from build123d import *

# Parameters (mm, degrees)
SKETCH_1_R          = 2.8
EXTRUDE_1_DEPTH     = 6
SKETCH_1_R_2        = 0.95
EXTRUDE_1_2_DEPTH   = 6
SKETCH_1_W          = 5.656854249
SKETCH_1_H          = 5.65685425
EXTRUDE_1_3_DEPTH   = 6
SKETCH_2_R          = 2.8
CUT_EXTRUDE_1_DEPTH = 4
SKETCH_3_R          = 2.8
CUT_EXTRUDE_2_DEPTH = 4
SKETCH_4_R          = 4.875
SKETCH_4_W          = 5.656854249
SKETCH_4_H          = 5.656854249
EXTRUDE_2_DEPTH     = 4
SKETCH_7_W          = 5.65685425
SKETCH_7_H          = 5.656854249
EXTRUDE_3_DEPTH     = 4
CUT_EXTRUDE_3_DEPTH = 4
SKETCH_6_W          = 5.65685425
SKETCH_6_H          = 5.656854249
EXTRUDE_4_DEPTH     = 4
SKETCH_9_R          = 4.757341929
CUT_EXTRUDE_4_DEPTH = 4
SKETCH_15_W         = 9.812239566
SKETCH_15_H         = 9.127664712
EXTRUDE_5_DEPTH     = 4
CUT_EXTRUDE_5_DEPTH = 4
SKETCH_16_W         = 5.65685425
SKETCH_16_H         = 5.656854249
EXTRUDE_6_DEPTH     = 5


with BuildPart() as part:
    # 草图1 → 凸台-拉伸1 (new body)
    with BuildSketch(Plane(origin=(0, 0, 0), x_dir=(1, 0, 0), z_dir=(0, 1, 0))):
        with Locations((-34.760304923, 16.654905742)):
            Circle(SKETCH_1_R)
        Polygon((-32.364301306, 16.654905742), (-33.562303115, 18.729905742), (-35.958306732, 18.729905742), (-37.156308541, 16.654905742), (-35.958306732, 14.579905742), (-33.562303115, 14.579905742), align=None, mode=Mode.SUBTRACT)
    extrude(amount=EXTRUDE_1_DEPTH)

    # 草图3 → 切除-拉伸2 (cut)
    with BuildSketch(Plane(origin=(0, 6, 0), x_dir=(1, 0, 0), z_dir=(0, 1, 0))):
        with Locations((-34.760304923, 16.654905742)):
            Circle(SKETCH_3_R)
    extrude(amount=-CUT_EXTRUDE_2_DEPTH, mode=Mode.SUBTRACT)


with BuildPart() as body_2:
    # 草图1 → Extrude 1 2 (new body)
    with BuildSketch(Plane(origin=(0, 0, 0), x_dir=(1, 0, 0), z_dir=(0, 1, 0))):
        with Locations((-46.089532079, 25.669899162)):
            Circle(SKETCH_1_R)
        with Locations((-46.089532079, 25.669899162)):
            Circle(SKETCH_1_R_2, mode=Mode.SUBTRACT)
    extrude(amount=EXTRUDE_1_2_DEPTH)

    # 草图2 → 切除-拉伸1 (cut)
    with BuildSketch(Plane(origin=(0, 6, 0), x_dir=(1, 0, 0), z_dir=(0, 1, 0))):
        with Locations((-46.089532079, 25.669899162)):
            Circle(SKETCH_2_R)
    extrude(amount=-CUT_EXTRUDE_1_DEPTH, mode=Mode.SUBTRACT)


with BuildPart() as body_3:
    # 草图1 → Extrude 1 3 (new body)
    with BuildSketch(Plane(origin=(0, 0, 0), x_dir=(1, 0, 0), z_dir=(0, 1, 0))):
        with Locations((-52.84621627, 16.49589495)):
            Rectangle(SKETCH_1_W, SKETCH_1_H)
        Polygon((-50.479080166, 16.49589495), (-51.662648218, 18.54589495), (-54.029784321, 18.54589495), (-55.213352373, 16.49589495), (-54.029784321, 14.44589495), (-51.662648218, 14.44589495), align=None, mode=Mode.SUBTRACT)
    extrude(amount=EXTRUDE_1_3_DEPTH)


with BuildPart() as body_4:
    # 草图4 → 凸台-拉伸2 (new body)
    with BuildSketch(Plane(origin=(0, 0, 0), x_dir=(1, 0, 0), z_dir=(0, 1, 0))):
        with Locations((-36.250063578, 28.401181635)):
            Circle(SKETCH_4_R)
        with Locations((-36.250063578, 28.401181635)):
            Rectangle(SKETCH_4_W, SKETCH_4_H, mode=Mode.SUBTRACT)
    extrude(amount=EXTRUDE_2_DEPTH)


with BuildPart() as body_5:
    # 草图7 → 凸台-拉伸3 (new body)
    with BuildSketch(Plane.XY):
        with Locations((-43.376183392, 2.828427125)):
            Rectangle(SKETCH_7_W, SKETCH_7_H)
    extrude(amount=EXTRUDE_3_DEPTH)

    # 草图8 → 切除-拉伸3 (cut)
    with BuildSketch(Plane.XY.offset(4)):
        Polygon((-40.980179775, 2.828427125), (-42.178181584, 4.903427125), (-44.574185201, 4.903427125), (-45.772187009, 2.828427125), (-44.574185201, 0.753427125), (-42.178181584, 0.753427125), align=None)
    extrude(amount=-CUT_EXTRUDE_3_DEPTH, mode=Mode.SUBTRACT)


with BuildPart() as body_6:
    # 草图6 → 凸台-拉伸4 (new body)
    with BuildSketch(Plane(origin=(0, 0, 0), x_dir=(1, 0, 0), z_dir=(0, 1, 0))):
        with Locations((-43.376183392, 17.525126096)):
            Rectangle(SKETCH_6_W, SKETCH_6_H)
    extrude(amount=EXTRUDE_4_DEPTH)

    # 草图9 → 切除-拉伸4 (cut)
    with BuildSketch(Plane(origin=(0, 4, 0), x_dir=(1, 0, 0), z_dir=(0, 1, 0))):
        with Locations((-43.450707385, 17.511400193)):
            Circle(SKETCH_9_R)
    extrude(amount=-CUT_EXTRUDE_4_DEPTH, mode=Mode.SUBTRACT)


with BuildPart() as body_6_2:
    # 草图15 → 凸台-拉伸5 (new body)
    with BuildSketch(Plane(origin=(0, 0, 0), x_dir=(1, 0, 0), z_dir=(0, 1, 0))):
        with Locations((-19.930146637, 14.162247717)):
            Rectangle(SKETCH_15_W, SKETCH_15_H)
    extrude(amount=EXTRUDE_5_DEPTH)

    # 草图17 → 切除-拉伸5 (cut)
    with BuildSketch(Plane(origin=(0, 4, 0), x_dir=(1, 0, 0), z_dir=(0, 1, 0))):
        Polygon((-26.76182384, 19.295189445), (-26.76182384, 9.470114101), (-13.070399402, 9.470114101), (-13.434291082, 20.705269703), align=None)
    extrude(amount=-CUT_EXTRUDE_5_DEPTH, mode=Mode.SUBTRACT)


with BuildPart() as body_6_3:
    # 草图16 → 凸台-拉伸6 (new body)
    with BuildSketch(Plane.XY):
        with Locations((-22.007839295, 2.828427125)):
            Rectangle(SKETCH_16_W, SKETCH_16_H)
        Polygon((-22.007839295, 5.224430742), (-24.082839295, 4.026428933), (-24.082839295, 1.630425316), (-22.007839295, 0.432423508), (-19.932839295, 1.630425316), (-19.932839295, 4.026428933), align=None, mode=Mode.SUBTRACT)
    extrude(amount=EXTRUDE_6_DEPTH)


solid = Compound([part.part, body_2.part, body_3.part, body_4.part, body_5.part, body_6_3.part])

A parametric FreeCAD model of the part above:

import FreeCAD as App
import Part
import Sketcher

V = App.Vector
Q = App.Units.Quantity

doc = App.newDocument("Part")
body = doc.addObject("PartDesign::Body", "Body")

# Sketch on XZ plane
sketch1 = body.newObject("Sketcher::SketchObject", "Sketch")
sketch1.AttachmentSupport = (doc.getObject("XZ_Plane"), [""])
sketch1.MapMode = "FlatFace"
sketch1.addGeometry([
    Part.Circle(V(-34.760305, -16.654906, 0), V(0, 0, 1), 2.8),  # 0
    Part.LineSegment(V(-33.562303, -18.729906, 0), V(-32.364301, -16.654906, 0)),  # 1
    Part.LineSegment(V(-32.364301, -16.654906, 0), V(-33.562303, -14.579906, 0)),  # 2
    Part.LineSegment(V(-33.562303, -14.579906, 0), V(-35.958307, -14.579906, 0)),  # 3
    Part.LineSegment(V(-35.958307, -14.579906, 0), V(-37.156309, -16.654906, 0)),  # 4
    Part.LineSegment(V(-37.156309, -16.654906, 0), V(-35.958307, -18.729906, 0)),  # 5
    Part.LineSegment(V(-35.958307, -18.729906, 0), V(-33.562303, -18.729906, 0)),  # 6
], False)
sketch1.addConstraint([
    Sketcher.Constraint("Coincident", 1, 2, 2, 1),
    Sketcher.Constraint("Coincident", 2, 2, 3, 1),
    Sketcher.Constraint("Coincident", 3, 2, 4, 1),
    Sketcher.Constraint("Coincident", 4, 2, 5, 1),
    Sketcher.Constraint("Coincident", 5, 2, 6, 1),
    Sketcher.Constraint("Coincident", 6, 2, 1, 1),
    Sketcher.Constraint("Horizontal", 3),
    Sketcher.Constraint("Horizontal", 6),
    Sketcher.Constraint("Parallel", 1, 4),
    Sketcher.Constraint("Parallel", 2, 5),
    Sketcher.Constraint("Horizontal", 0, 3, 1, 2),
    Sketcher.Constraint("Horizontal", 1, 2, 4, 2),
    Sketcher.Constraint("Vertical", 3, 2, 5, 2),
    Sketcher.Constraint("Vertical", 2, 2, 6, 2),
    Sketcher.Constraint("Diameter", 0, Q("5.6 mm")),
    Sketcher.Constraint("Angle", 1, Q("60 deg")),
    Sketcher.Constraint("DistanceY", 5, 2, 3, 2, Q("4.15 mm")),
    Sketcher.Constraint("DistanceX", 0, 3, 2, 2, Q("1.198002 mm")),
    Sketcher.Constraint("DistanceX", 3, 2, 0, 3, Q("1.198002 mm")),
    Sketcher.Constraint("DistanceX", 1, 2, -1, 1, Q("32.364301 mm")),
    Sketcher.Constraint("DistanceY", 0, 3, -1, 1, Q("16.654906 mm")),
])
pad1 = body.newObject("PartDesign::Pad", "Pad")
pad1.Profile = sketch1
pad1.Length = 6
pad1.Reversed = True

# Sketch on XZ plane
sketch2 = body.newObject("Sketcher::SketchObject", "Sketch001")
sketch2.AttachmentSupport = (doc.getObject("XZ_Plane"), [""])
sketch2.MapMode = "FlatFace"
sketch2.AttachmentOffset = App.Placement(V(0, 0, -6), App.Rotation())
sketch2.addGeometry(Part.Circle(V(-34.760305, -16.654906, 0), V(0, 0, 1), 2.8), False)
sketch2.addConstraint([
    Sketcher.Constraint("Diameter", 0, Q("5.6 mm")),
    Sketcher.Constraint("DistanceX", 0, 3, -1, 1, Q("34.760305 mm")),
    Sketcher.Constraint("DistanceY", 0, 3, -1, 1, Q("16.654906 mm")),
])
pocket1 = body.newObject("PartDesign::Pocket", "Pocket")
pocket1.Profile = sketch2
pocket1.Length = 4
pocket1.Reversed = True
body2 = doc.addObject("PartDesign::Body", "Body001")

# Sketch on XZ plane
sketch3 = body2.newObject("Sketcher::SketchObject", "Sketch002")
sketch3.AttachmentSupport = (doc.getObject("XZ_Plane001"), [""])
sketch3.MapMode = "FlatFace"
sketch3.addGeometry([
    Part.Circle(V(-46.089532, -25.669899, 0), V(0, 0, 1), 2.8),
    Part.Circle(V(-46.089532, -25.669899, 0), V(0, 0, 1), 0.95),
], False)
sketch3.addConstraint([
    Sketcher.Constraint("Coincident", 1, 3, 0, 3),
    Sketcher.Constraint("Diameter", 0, Q("5.6 mm")),
    Sketcher.Constraint("Diameter", 1, Q("1.9 mm")),
    Sketcher.Constraint("DistanceY", 0, 3, -1, 1, Q("25.669899 mm")),
    Sketcher.Constraint("DistanceX", 0, 3, -1, 1, Q("46.089532 mm")),
])
pad2 = body2.newObject("PartDesign::Pad", "Pad001")
pad2.Profile = sketch3
pad2.Length = 6
pad2.Reversed = True

# Sketch on XZ plane
sketch4 = body2.newObject("Sketcher::SketchObject", "Sketch003")
sketch4.AttachmentSupport = (doc.getObject("XZ_Plane001"), [""])
sketch4.MapMode = "FlatFace"
sketch4.AttachmentOffset = App.Placement(V(0, 0, -6), App.Rotation())
sketch4.addGeometry(Part.Circle(V(-46.089532, -25.669899, 0), V(0, 0, 1), 2.8), False)
sketch4.addConstraint([
    Sketcher.Constraint("Diameter", 0, Q("5.6 mm")),
    Sketcher.Constraint("DistanceY", 0, 3, -1, 1, Q("25.669899 mm")),
    Sketcher.Constraint("DistanceX", 0, 3, -1, 1, Q("46.089532 mm")),
])
pocket2 = body2.newObject("PartDesign::Pocket", "Pocket001")
pocket2.Profile = sketch4
pocket2.Length = 4
pocket2.Reversed = True
body3 = doc.addObject("PartDesign::Body", "Body002")

# Sketch on XZ plane
sketch5 = body3.newObject("Sketcher::SketchObject", "Sketch004")
sketch5.AttachmentSupport = (doc.getObject("XZ_Plane002"), [""])
sketch5.MapMode = "FlatFace"
sketch5.addGeometry([
    Part.LineSegment(V(-55.674643, -19.324322, 0), V(-55.674643, -13.667468, 0)),  # 0
    Part.LineSegment(V(-55.674643, -13.667468, 0), V(-50.017789, -13.667468, 0)),  # 1
    Part.LineSegment(V(-50.017789, -13.667468, 0), V(-50.017789, -19.324322, 0)),  # 2
    Part.LineSegment(V(-50.017789, -19.324322, 0), V(-55.674643, -19.324322, 0)),  # 3
    Part.LineSegment(V(-51.662648, -18.545895, 0), V(-50.47908, -16.495895, 0)),  # 4
    Part.LineSegment(V(-50.47908, -16.495895, 0), V(-51.662648, -14.445895, 0)),  # 5
    Part.LineSegment(V(-51.662648, -14.445895, 0), V(-54.029784, -14.445895, 0)),  # 6
    Part.LineSegment(V(-54.029784, -14.445895, 0), V(-55.213352, -16.495895, 0)),  # 7
    Part.LineSegment(V(-55.213352, -16.495895, 0), V(-54.029784, -18.545895, 0)),  # 8
    Part.LineSegment(V(-54.029784, -18.545895, 0), V(-51.662648, -18.545895, 0)),  # 9
], False)
sketch5.addConstraint([
    Sketcher.Constraint("Coincident", 0, 2, 1, 1),
    Sketcher.Constraint("Coincident", 1, 2, 2, 1),
    Sketcher.Constraint("Coincident", 2, 2, 3, 1),
    Sketcher.Constraint("Coincident", 3, 2, 0, 1),
    Sketcher.Constraint("Coincident", 4, 2, 5, 1),
    Sketcher.Constraint("Coincident", 5, 2, 6, 1),
    Sketcher.Constraint("Coincident", 6, 2, 7, 1),
    Sketcher.Constraint("Coincident", 7, 2, 8, 1),
    Sketcher.Constraint("Coincident", 8, 2, 9, 1),
    Sketcher.Constraint("Coincident", 9, 2, 4, 1),
    Sketcher.Constraint("Vertical", 0),
    Sketcher.Constraint("Horizontal", 1),
    Sketcher.Constraint("Vertical", 2),
    Sketcher.Constraint("Horizontal", 3),
    Sketcher.Constraint("Horizontal", 6),
    Sketcher.Constraint("Horizontal", 9),
    Sketcher.Constraint("Parallel", 4, 7),
    Sketcher.Constraint("Parallel", 5, 8),
    Sketcher.Constraint("Horizontal", 4, 2, 7, 2),
    Sketcher.Constraint("Vertical", 6, 2, 8, 2),
    Sketcher.Constraint("Vertical", 5, 2, 9, 2),
    Sketcher.Constraint("Equal", 3, 0),
    Sketcher.Constraint("Angle", 4, Q("60 deg")),
    Sketcher.Constraint("DistanceY", 8, 2, 6, 2, Q("4.1 mm")),
    Sketcher.Constraint("DistanceX", 1, 1, 1, 2, Q("5.656854 mm")),
    Sketcher.Constraint("DistanceX", 6, 2, 6, 1, Q("2.367136 mm")),
    Sketcher.Constraint("DistanceX", 1, 2, -1, 1, Q("50.017789 mm")),
    Sketcher.Constraint("DistanceX", 4, 2, -1, 1, Q("50.47908 mm")),
    Sketcher.Constraint("DistanceY", 0, 2, -1, 1, Q("13.667468 mm")),
    Sketcher.Constraint("DistanceY", 4, 2, -1, 1, Q("16.495895 mm")),
])
pad3 = body3.newObject("PartDesign::Pad", "Pad002")
pad3.Profile = sketch5
pad3.Length = 6
pad3.Reversed = True
body4 = doc.addObject("PartDesign::Body", "Body003")

# Sketch on XZ plane
sketch6 = body4.newObject("Sketcher::SketchObject", "Sketch005")
sketch6.AttachmentSupport = (doc.getObject("XZ_Plane003"), [""])
sketch6.MapMode = "FlatFace"
sketch6.addGeometry([
    Part.Circle(V(-36.250064, -28.401182, 0), V(0, 0, 1), 4.875),  # 0
    Part.LineSegment(V(-33.421636, -25.572755, 0), V(-39.078491, -25.572755, 0)),  # 1
    Part.LineSegment(V(-39.078491, -25.572755, 0), V(-39.078491, -31.229609, 0)),  # 2
    Part.LineSegment(V(-39.078491, -31.229609, 0), V(-33.421636, -31.229609, 0)),  # 3
    Part.LineSegment(V(-33.421636, -31.229609, 0), V(-33.421636, -25.572755, 0)),  # 4
], False)
sketch6.addConstraint([
    Sketcher.Constraint("Coincident", 1, 2, 2, 1),
    Sketcher.Constraint("Coincident", 2, 2, 3, 1),
    Sketcher.Constraint("Coincident", 3, 2, 4, 1),
    Sketcher.Constraint("Coincident", 4, 2, 1, 1),
    Sketcher.Constraint("Horizontal", 1),
    Sketcher.Constraint("Vertical", 2),
    Sketcher.Constraint("Horizontal", 3),
    Sketcher.Constraint("Vertical", 4),
    Sketcher.Constraint("Equal", 3, 2),
    Sketcher.Constraint("Diameter", 0, Q("9.75 mm")),
    Sketcher.Constraint("DistanceX", 1, 2, 1, 1, Q("5.656854 mm")),
    Sketcher.Constraint("DistanceY", 0, 3, -1, 1, Q("28.401182 mm")),
    Sketcher.Constraint("DistanceX", 1, 2, -1, 1, Q("39.078491 mm")),
    Sketcher.Constraint("DistanceY", 2, 2, -1, 1, Q("31.229609 mm")),
    Sketcher.Constraint("DistanceX", 0, 3, -1, 1, Q("36.250064 mm")),
])
pad4 = body4.newObject("PartDesign::Pad", "Pad003")
pad4.Profile = sketch6
pad4.Length = 4
pad4.Reversed = True
body5 = doc.addObject("PartDesign::Body", "Body004")

# Sketch on XY plane
sketch7 = body5.newObject("Sketcher::SketchObject", "Sketch006")
sketch7.AttachmentSupport = (doc.getObject("XY_Plane004"), [""])
sketch7.MapMode = "FlatFace"
sketch7.addGeometry([
    Part.LineSegment(V(-46.204611, 5.656854, 0), V(-46.204611, 0, 0)),
    Part.LineSegment(V(-46.204611, 0, 0), V(-40.547756, 0, 0)),
    Part.LineSegment(V(-40.547756, 0, 0), V(-40.547756, 5.656854, 0)),
    Part.LineSegment(V(-40.547756, 5.656854, 0), V(-46.204611, 5.656854, 0)),
], False)
sketch7.addConstraint([
    Sketcher.Constraint("Coincident", 0, 2, 1, 1),
    Sketcher.Constraint("Coincident", 1, 2, 2, 1),
    Sketcher.Constraint("Coincident", 2, 2, 3, 1),
    Sketcher.Constraint("Coincident", 3, 2, 0, 1),
    Sketcher.Constraint("Vertical", 0),
    Sketcher.Constraint("Horizontal", 1),
    Sketcher.Constraint("Vertical", 2),
    Sketcher.Constraint("Horizontal", 3),
    Sketcher.Constraint("PointOnObject", 0, 2, -1),
    Sketcher.Constraint("Equal", 3, 0),
    Sketcher.Constraint("DistanceX", 1, 1, 1, 2, Q("5.656854 mm")),
    Sketcher.Constraint("DistanceX", 0, 2, -1, 1, Q("46.204611 mm")),
])
pad5 = body5.newObject("PartDesign::Pad", "Pad004")
pad5.Profile = sketch7
pad5.Length = 4

# Sketch on XY plane
sketch8 = body5.newObject("Sketcher::SketchObject", "Sketch007")
sketch8.AttachmentSupport = (doc.getObject("XY_Plane004"), [""])
sketch8.MapMode = "FlatFace"
sketch8.AttachmentOffset = App.Placement(V(0, 0, 4), App.Rotation())
sketch8.addGeometry([
    Part.LineSegment(V(-40.98018, 2.828427, 0), V(-42.178182, 4.903427, 0)),  # 0
    Part.LineSegment(V(-42.178182, 4.903427, 0), V(-44.574185, 4.903427, 0)),  # 1
    Part.LineSegment(V(-44.574185, 4.903427, 0), V(-45.772187, 2.828427, 0)),  # 2
    Part.LineSegment(V(-45.772187, 2.828427, 0), V(-44.574185, 0.753427, 0)),  # 3
    Part.LineSegment(V(-44.574185, 0.753427, 0), V(-42.178182, 0.753427, 0)),  # 4
    Part.LineSegment(V(-42.178182, 0.753427, 0), V(-40.98018, 2.828427, 0)),  # 5
], False)
sketch8.addConstraint([
    Sketcher.Constraint("Coincident", 0, 2, 1, 1),
    Sketcher.Constraint("Coincident", 1, 2, 2, 1),
    Sketcher.Constraint("Coincident", 2, 2, 3, 1),
    Sketcher.Constraint("Coincident", 3, 2, 4, 1),
    Sketcher.Constraint("Coincident", 4, 2, 5, 1),
    Sketcher.Constraint("Coincident", 5, 2, 0, 1),
    Sketcher.Constraint("Horizontal", 1),
    Sketcher.Constraint("Horizontal", 4),
    Sketcher.Constraint("Parallel", 0, 3),
    Sketcher.Constraint("Parallel", 2, 5),
    Sketcher.Constraint("Horizontal", 2, 2, 5, 2),
    Sketcher.Constraint("Vertical", 1, 2, 3, 2),
    Sketcher.Constraint("Vertical", 0, 2, 4, 2),
    Sketcher.Constraint("Angle", 0, Q("120 deg")),
    Sketcher.Constraint("DistanceY", 3, 2, 1, 2, Q("4.15 mm")),
    Sketcher.Constraint("DistanceX", 1, 2, 1, 1, Q("2.396004 mm")),
    Sketcher.Constraint("DistanceX", 0, 2, -1, 1, Q("42.178182 mm")),
    Sketcher.Constraint("DistanceY", -1, 1, 0, 2, Q("4.903427 mm")),
])
pocket3 = body5.newObject("PartDesign::Pocket", "Pocket002")
pocket3.Profile = sketch8
pocket3.Length = 4
body6 = doc.addObject("PartDesign::Body", "Body005")

# Sketch on XZ plane
sketch9 = body6.newObject("Sketcher::SketchObject", "Sketch008")
sketch9.AttachmentSupport = (doc.getObject("XZ_Plane005"), [""])
sketch9.MapMode = "FlatFace"
sketch9.addGeometry([
    Part.LineSegment(V(-46.204611, -20.353553, 0), V(-46.204611, -14.696699, 0)),
    Part.LineSegment(V(-46.204611, -14.696699, 0), V(-40.547756, -14.696699, 0)),
    Part.LineSegment(V(-40.547756, -14.696699, 0), V(-40.547756, -20.353553, 0)),
    Part.LineSegment(V(-40.547756, -20.353553, 0), V(-46.204611, -20.353553, 0)),
], False)
sketch9.addConstraint([
    Sketcher.Constraint("Coincident", 0, 2, 1, 1),
    Sketcher.Constraint("Coincident", 1, 2, 2, 1),
    Sketcher.Constraint("Coincident", 2, 2, 3, 1),
    Sketcher.Constraint("Coincident", 3, 2, 0, 1),
    Sketcher.Constraint("Vertical", 0),
    Sketcher.Constraint("Horizontal", 1),
    Sketcher.Constraint("Vertical", 2),
    Sketcher.Constraint("Horizontal", 3),
    Sketcher.Constraint("Equal", 3, 0),
    Sketcher.Constraint("DistanceY", 0, 2, -1, 1, Q("14.696699 mm")),
    Sketcher.Constraint("DistanceX", 1, 1, 1, 2, Q("5.656854 mm")),
    Sketcher.Constraint("DistanceX", 0, 2, -1, 1, Q("46.204611 mm")),
])
pad6 = body6.newObject("PartDesign::Pad", "Pad005")
pad6.Profile = sketch9
pad6.Length = 4
pad6.Reversed = True

# Sketch on XZ plane
sketch10 = body6.newObject("Sketcher::SketchObject", "Sketch009")
sketch10.AttachmentSupport = (doc.getObject("XZ_Plane005"), [""])
sketch10.MapMode = "FlatFace"
sketch10.AttachmentOffset = App.Placement(V(0, 0, -4), App.Rotation())
sketch10.addGeometry(Part.Circle(V(-43.450707, -17.5114, 0), V(0, 0, 1), 4.757342), False)
sketch10.addConstraint([
    Sketcher.Constraint("Diameter", 0, Q("9.514684 mm")),
    Sketcher.Constraint("DistanceY", 0, 3, -1, 1, Q("17.5114 mm")),
    Sketcher.Constraint("DistanceX", 0, 3, -1, 1, Q("43.450707 mm")),
])
pocket4 = body6.newObject("PartDesign::Pocket", "Pocket003")
pocket4.Profile = sketch10
pocket4.Length = 4
pocket4.Reversed = True
body7 = doc.addObject("PartDesign::Body", "Body006")

# Sketch on XZ plane
sketch11 = body7.newObject("Sketcher::SketchObject", "Sketch010")
sketch11.AttachmentSupport = (doc.getObject("XZ_Plane006"), [""])
sketch11.MapMode = "FlatFace"
sketch11.addGeometry([
    Part.LineSegment(V(-24.836266, -18.72608, 0), V(-24.836266, -9.598415, 0)),
    Part.LineSegment(V(-24.836266, -9.598415, 0), V(-15.024027, -9.598415, 0)),
    Part.LineSegment(V(-15.024027, -9.598415, 0), V(-15.024027, -18.72608, 0)),
    Part.LineSegment(V(-15.024027, -18.72608, 0), V(-24.836266, -18.72608, 0)),
], False)
sketch11.addConstraint([
    Sketcher.Constraint("Coincident", 0, 2, 1, 1),
    Sketcher.Constraint("Coincident", 1, 2, 2, 1),
    Sketcher.Constraint("Coincident", 2, 2, 3, 1),
    Sketcher.Constraint("Coincident", 3, 2, 0, 1),
    Sketcher.Constraint("Vertical", 0),
    Sketcher.Constraint("Horizontal", 1),
    Sketcher.Constraint("Vertical", 2),
    Sketcher.Constraint("Horizontal", 3),
    Sketcher.Constraint("DistanceX", 1, 1, 1, 2, Q("9.81224 mm")),
    Sketcher.Constraint("DistanceY", 0, 1, 0, 2, Q("9.127665 mm")),
    Sketcher.Constraint("DistanceY", 2, 2, -1, 1, Q("18.72608 mm")),
    Sketcher.Constraint("DistanceX", 0, 2, -1, 1, Q("24.836266 mm")),
])
pad7 = body7.newObject("PartDesign::Pad", "Pad006")
pad7.Profile = sketch11
pad7.Length = 4
pad7.Reversed = True

# Sketch on XZ plane
sketch12 = body7.newObject("Sketcher::SketchObject", "Sketch011")
sketch12.AttachmentSupport = (doc.getObject("XZ_Plane006"), [""])
sketch12.MapMode = "FlatFace"
sketch12.AttachmentOffset = App.Placement(V(0, 0, -4), App.Rotation())
sketch12.addGeometry([
    Part.LineSegment(V(-26.761824, -19.295189, 0), V(-26.761824, -9.470114, 0)),
    Part.LineSegment(V(-26.761824, -9.470114, 0), V(-13.070399, -9.470114, 0)),
    Part.LineSegment(V(-13.070399, -9.470114, 0), V(-13.434291, -20.70527, 0)),
    Part.LineSegment(V(-13.434291, -20.70527, 0), V(-26.761824, -19.295189, 0)),
], False)
sketch12.addConstraint([
    Sketcher.Constraint("Coincident", 0, 2, 1, 1),
    Sketcher.Constraint("Coincident", 1, 2, 2, 1),
    Sketcher.Constraint("Coincident", 2, 2, 3, 1),
    Sketcher.Constraint("Coincident", 3, 2, 0, 1),
    Sketcher.Constraint("Vertical", 0),
    Sketcher.Constraint("Horizontal", 1),
    Sketcher.Constraint("DistanceX", 1, 2, -1, 1, Q("13.070399 mm")),
    Sketcher.Constraint("Distance", 3, Q("13.40192 mm")),
    Sketcher.Constraint("DistanceX", 1, 1, 1, 2, Q("13.691424 mm")),
    Sketcher.Constraint("DistanceY", 0, 1, 0, 2, Q("9.825075 mm")),
    Sketcher.Constraint("DistanceX", 2, 2, -1, 1, Q("13.434291 mm")),
    Sketcher.Constraint("DistanceY", 2, 2, -1, 1, Q("20.70527 mm")),
])
pocket5 = body7.newObject("PartDesign::Pocket", "Pocket004")
pocket5.Profile = sketch12
pocket5.Length = 4
pocket5.Reversed = True
body8 = doc.addObject("PartDesign::Body", "Body007")

# Sketch on XY plane
sketch13 = body8.newObject("Sketcher::SketchObject", "Sketch012")
sketch13.AttachmentSupport = (doc.getObject("XY_Plane007"), [""])
sketch13.MapMode = "FlatFace"
sketch13.addGeometry([
    Part.LineSegment(V(-24.836266, 5.656854, 0), V(-24.836266, 0, 0)),  # 0
    Part.LineSegment(V(-24.836266, 0, 0), V(-19.179412, 0, 0)),  # 1
    Part.LineSegment(V(-19.179412, 0, 0), V(-19.179412, 5.656854, 0)),  # 2
    Part.LineSegment(V(-19.179412, 5.656854, 0), V(-24.836266, 5.656854, 0)),  # 3
    Part.LineSegment(V(-24.082839, 4.026429, 0), V(-22.007839, 5.224431, 0)),  # 4
    Part.LineSegment(V(-22.007839, 5.224431, 0), V(-19.932839, 4.026429, 0)),  # 5
    Part.LineSegment(V(-19.932839, 4.026429, 0), V(-19.932839, 1.630425, 0)),  # 6
    Part.LineSegment(V(-19.932839, 1.630425, 0), V(-22.007839, 0.432424, 0)),  # 7
    Part.LineSegment(V(-22.007839, 0.432424, 0), V(-24.082839, 1.630425, 0)),  # 8
    Part.LineSegment(V(-24.082839, 1.630425, 0), V(-24.082839, 4.026429, 0)),  # 9
], False)
sketch13.addConstraint([
    Sketcher.Constraint("Coincident", 0, 2, 1, 1),
    Sketcher.Constraint("Coincident", 1, 2, 2, 1),
    Sketcher.Constraint("Coincident", 2, 2, 3, 1),
    Sketcher.Constraint("Coincident", 3, 2, 0, 1),
    Sketcher.Constraint("Coincident", 4, 2, 5, 1),
    Sketcher.Constraint("Coincident", 5, 2, 6, 1),
    Sketcher.Constraint("Coincident", 6, 2, 7, 1),
    Sketcher.Constraint("Coincident", 7, 2, 8, 1),
    Sketcher.Constraint("Coincident", 8, 2, 9, 1),
    Sketcher.Constraint("Coincident", 9, 2, 4, 1),
    Sketcher.Constraint("Vertical", 0),
    Sketcher.Constraint("Horizontal", 1),
    Sketcher.Constraint("Vertical", 2),
    Sketcher.Constraint("Horizontal", 3),
    Sketcher.Constraint("Vertical", 6),
    Sketcher.Constraint("Vertical", 9),
    Sketcher.Constraint("PointOnObject", 0, 2, -1),
    Sketcher.Constraint("Parallel", 4, 7),
    Sketcher.Constraint("Parallel", 5, 8),
    Sketcher.Constraint("Horizontal", 6, 2, 8, 2),
    Sketcher.Constraint("Horizontal", 5, 2, 9, 2),
    Sketcher.Constraint("Vertical", 4, 2, 7, 2),
    Sketcher.Constraint("Equal", 3, 0),
    Sketcher.Constraint("Angle", 4, Q("30 deg")),
    Sketcher.Constraint("DistanceX", 8, 2, 6, 2, Q("4.15 mm")),
    Sketcher.Constraint("DistanceX", 1, 1, 1, 2, Q("5.656854 mm")),
    Sketcher.Constraint("DistanceY", 6, 2, 6, 1, Q("2.396004 mm")),
    Sketcher.Constraint("DistanceX", 4, 2, -1, 1, Q("22.007839 mm")),
    Sketcher.Constraint("DistanceY", -1, 1, 4, 2, Q("5.224431 mm")),
    Sketcher.Constraint("DistanceX", 0, 2, -1, 1, Q("24.836266 mm")),
])
pad8 = body8.newObject("PartDesign::Pad", "Pad007")
pad8.Profile = sketch13
pad8.Length = 5

doc.recompute()
